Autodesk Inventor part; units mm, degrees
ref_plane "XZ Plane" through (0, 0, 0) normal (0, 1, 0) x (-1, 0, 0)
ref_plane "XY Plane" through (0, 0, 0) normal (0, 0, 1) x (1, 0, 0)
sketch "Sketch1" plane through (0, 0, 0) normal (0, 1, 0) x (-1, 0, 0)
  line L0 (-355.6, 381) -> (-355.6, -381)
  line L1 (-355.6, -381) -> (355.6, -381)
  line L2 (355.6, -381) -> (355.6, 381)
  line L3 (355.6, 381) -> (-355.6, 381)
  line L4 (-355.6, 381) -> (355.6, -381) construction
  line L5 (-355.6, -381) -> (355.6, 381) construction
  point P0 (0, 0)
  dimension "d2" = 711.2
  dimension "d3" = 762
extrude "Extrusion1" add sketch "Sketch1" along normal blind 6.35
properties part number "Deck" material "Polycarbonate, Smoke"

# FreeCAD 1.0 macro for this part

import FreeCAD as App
import Part
import Sketcher
Q = App.Units.Quantity

doc = App.newDocument("Part")
params = doc.addObject("Spreadsheet::Sheet", "Params")
for row, (alias, value) in enumerate([
    ("sketch1_width", "28 in"),
    ("sketch1_height", "30 in"),
    ("pad1_length", "0.25 in"),
], start=1):
    params.set(f"A{row}", alias)
    params.set(f"B{row}", "=" + value)
    params.setAlias(f"B{row}", alias)

body = doc.addObject("PartDesign::Body", "Body")

# Sketch on XZ plane
sketch1 = body.newObject("Sketcher::SketchObject", "Sketch")
sketch1.AttachmentSupport = (doc.getObject("XZ_Plane"), [""])
sketch1.MapMode = "FlatFace"
sketch1.addGeometry(Part.LineSegment(App.Vector(-355.6, 381, 0), App.Vector(355.6, 381, 0)), False)
sketch1.addGeometry(Part.LineSegment(App.Vector(355.6, 381, 0), App.Vector(355.6, -381, 0)), False)
sketch1.addGeometry(Part.LineSegment(App.Vector(355.6, -381, 0), App.Vector(-355.6, -381, 0)), False)
sketch1.addGeometry(Part.LineSegment(App.Vector(-355.6, -381, 0), App.Vector(-355.6, 381, 0)), False)
sketch1.addConstraint(Sketcher.Constraint("Coincident", 0, 2, 1, 1))
sketch1.addConstraint(Sketcher.Constraint("Coincident", 1, 2, 2, 1))
sketch1.addConstraint(Sketcher.Constraint("Coincident", 2, 2, 3, 1))
sketch1.addConstraint(Sketcher.Constraint("Coincident", 3, 2, 0, 1))
sketch1.addConstraint(Sketcher.Constraint("Horizontal", 0))
sketch1.addConstraint(Sketcher.Constraint("Vertical", 1))
sketch1.addConstraint(Sketcher.Constraint("Horizontal", 2))
sketch1.addConstraint(Sketcher.Constraint("Vertical", 3))
sketch1.addConstraint(Sketcher.Constraint("Symmetric", 0, 2, 2, 2, -1, 1))
sketch1.addConstraint(Sketcher.Constraint("DistanceX", 0, 1, 0, 2, Q("28 in")))
sketch1.addConstraint(Sketcher.Constraint("DistanceY", 1, 2, 1, 1, Q("30 in")))
sketch1.setExpression("Constraints[9]", "Params.sketch1_width")
sketch1.setExpression("Constraints[10]", "Params.sketch1_height")
pad1 = body.newObject("PartDesign::Pad", "Pad")
pad1.Profile = sketch1
pad1.setExpression("Length", "Params.pad1_length")
pad1.Reversed = True

doc.recompute()
